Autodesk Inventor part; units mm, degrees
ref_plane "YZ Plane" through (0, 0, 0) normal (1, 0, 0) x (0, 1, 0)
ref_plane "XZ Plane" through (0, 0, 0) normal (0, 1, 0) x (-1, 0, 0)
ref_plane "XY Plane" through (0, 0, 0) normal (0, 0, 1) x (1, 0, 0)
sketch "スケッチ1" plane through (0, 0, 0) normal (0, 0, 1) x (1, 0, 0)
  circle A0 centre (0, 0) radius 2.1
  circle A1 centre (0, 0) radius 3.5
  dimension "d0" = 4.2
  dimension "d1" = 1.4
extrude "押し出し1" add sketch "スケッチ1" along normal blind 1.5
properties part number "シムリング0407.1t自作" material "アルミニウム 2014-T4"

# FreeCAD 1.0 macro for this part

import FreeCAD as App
import Part
import Sketcher
from FreeCAD import Vector
Q = App.Units.Quantity

doc = App.newDocument("Part")
body = doc.addObject("PartDesign::Body", "Body")

# Sketch on XY plane
sketch1 = body.newObject("Sketcher::SketchObject", "Sketch")
sketch1.AttachmentSupport = (doc.getObject("XY_Plane"), [""])
sketch1.MapMode = "FlatFace"
sketch1.addGeometry([
    Part.Circle(Vector(0, 0, 0), Vector(0, 0, 1), 3.5),
    Part.Circle(Vector(0, 0, 0), Vector(0, 0, 1), 2.1),
], False)
sketch1.addConstraint([
    Sketcher.Constraint("Coincident", 0, 3, -1, 1),
    Sketcher.Constraint("Coincident", 1, 3, -1, 1),
    Sketcher.Constraint("Diameter", 1, Q("4.2 mm")),
    Sketcher.Constraint("Diameter", 0, Q("7 mm")),
])
pad1 = body.newObject("PartDesign::Pad", "Pad")
pad1.Profile = sketch1
pad1.Length = 1.5

doc.recompute()
